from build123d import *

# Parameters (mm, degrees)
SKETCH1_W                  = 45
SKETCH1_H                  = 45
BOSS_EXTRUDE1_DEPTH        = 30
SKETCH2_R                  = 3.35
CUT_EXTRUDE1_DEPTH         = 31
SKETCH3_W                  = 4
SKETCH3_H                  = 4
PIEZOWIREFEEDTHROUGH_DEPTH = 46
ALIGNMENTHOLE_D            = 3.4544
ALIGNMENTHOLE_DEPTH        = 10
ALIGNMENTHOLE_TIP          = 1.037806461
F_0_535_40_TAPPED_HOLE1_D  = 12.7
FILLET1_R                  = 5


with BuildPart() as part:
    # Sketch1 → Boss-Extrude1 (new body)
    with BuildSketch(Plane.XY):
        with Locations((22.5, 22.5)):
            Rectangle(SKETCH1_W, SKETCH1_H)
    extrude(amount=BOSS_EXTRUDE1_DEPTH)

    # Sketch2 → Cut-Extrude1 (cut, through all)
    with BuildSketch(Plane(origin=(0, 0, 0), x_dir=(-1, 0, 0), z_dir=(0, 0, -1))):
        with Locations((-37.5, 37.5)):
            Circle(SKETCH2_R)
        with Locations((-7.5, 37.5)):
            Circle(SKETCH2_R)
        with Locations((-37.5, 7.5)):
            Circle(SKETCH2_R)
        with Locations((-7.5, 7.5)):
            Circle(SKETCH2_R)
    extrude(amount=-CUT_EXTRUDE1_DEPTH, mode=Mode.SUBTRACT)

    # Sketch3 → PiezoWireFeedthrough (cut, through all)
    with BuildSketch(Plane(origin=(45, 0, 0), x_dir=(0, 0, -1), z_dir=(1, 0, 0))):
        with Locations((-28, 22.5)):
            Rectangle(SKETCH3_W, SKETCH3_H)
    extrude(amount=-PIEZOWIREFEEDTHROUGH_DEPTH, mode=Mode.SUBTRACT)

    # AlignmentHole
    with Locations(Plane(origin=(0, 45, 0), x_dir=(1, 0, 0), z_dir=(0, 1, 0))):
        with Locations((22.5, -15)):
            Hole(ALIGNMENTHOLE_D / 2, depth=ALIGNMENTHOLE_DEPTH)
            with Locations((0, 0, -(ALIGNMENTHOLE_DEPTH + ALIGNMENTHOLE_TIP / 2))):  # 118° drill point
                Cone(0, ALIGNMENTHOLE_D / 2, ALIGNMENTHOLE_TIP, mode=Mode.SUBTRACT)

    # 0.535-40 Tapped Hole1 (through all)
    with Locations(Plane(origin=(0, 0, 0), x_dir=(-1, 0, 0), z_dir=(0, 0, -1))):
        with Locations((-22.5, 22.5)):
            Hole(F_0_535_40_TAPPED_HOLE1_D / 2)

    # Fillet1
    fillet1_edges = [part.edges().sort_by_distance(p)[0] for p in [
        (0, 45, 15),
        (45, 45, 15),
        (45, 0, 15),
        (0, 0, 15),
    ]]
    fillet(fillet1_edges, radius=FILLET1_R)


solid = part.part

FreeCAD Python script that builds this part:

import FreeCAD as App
import Part
import Sketcher
from FreeCAD import Vector
Q = App.Units.Quantity


def edges_at(feature, points):
    """Names of the edges that pass closest to the given points."""
    edges = feature.Shape.Edges
    near = lambda p: min(range(len(edges)), key=lambda i: edges[i].distToShape(Part.Vertex(*p))[0])
    return sorted({f"Edge{near(p) + 1}" for p in points})


def add_polygon(sketch, points):
    """Adds a closed chain of lines whose ends are joined by coincident constraints."""
    first, n = sketch.GeometryCount, len(points)
    for a, b in zip(points, points[1:] + points[:1]):
        sketch.addGeometry(Part.LineSegment(App.Vector(*a, 0), App.Vector(*b, 0)), False)
    for i in range(n):
        sketch.addConstraint(Sketcher.Constraint("Coincident", first + i, 2, first + (i + 1) % n, 1))

doc = App.newDocument("Part")
body = doc.addObject("PartDesign::Body", "Body")

# Sketch on XY plane
sketch1 = doc.addObject("Sketcher::SketchObject", "Sketch")
body.addObject(sketch1)
sketch1.AttachmentSupport = (doc.XY_Plane, [""])
sketch1.MapMode = "FlatFace"
add_polygon(sketch1, [(0, 45), (0, 0), (45, 0), (45, 45)])  # lines 0-3
sketch1.addConstraint(Sketcher.Constraint("Vertical", 0))
sketch1.addConstraint(Sketcher.Constraint("Horizontal", 1))
sketch1.addConstraint(Sketcher.Constraint("Vertical", 2))
sketch1.addConstraint(Sketcher.Constraint("Horizontal", 3))
sketch1.addConstraint(Sketcher.Constraint("Coincident", 0, 2, -1, 1))
sketch1.addConstraint(Sketcher.Constraint("Equal", 3, 0))
sketch1.addConstraint(Sketcher.Constraint("DistanceX", 1, 1, 1, 2, Q("45 mm")))
pad1 = doc.addObject("PartDesign::Pad", "Pad")
body.addObject(pad1)
pad1.Profile = sketch1
pad1.Length = 30

# Sketch on XY plane
sketch2 = doc.addObject("Sketcher::SketchObject", "Sketch001")
body.addObject(sketch2)
sketch2.AttachmentSupport = (doc.XY_Plane, [""])
sketch2.MapMode = "FlatFace"
sketch2.addGeometry(Part.Circle(Vector(37.5, 37.5, 0), Vector(0, 0, 1), 3.4), False)
sketch2.addGeometry(Part.Circle(Vector(7.5, 37.5, 0), Vector(0, 0, 1), 3.4), False)
sketch2.addGeometry(Part.Circle(Vector(37.5, 7.5, 0), Vector(0, 0, 1), 3.4), False)
sketch2.addGeometry(Part.Circle(Vector(7.5, 7.5, 0), Vector(0, 0, 1), 3.4), False)
sketch2.addConstraint(Sketcher.Constraint("Equal", 0, 1))
sketch2.addConstraint(Sketcher.Constraint("Equal", 1, 2))
sketch2.addConstraint(Sketcher.Constraint("Equal", 2, 3))
sketch2.addConstraint(Sketcher.Constraint("Horizontal", 0, 3, 1, 3))
sketch2.addConstraint(Sketcher.Constraint("Horizontal", 2, 3, 3, 3))
sketch2.addConstraint(Sketcher.Constraint("Vertical", 0, 3, 2, 3))
sketch2.addConstraint(Sketcher.Constraint("Vertical", 1, 3, 3, 3))
sketch2.addConstraint(Sketcher.Constraint("Diameter", 0, Q("6.7 mm")))
sketch2.addConstraint(Sketcher.Constraint("DistanceX", 1, 3, 0, 3, Q("30 mm")))
sketch2.addConstraint(Sketcher.Constraint("DistanceY", 2, 3, 0, 3, Q("30 mm")))
sketch2.addConstraint(Sketcher.Constraint("DistanceX", -1, 1, 0, 3, Q("37.5 mm")))
sketch2.addConstraint(Sketcher.Constraint("DistanceY", -1, 1, 0, 3, Q("37.5 mm")))
pocket1 = doc.addObject("PartDesign::Pocket", "Pocket")
body.addObject(pocket1)
pocket1.Profile = sketch2
pocket1.Type = "ThroughAll"
pocket1.Reversed = True

# Sketch on YZ plane
sketch3 = doc.addObject("Sketcher::SketchObject", "Sketch002")
body.addObject(sketch3)
sketch3.AttachmentSupport = (doc.YZ_Plane, [""])
sketch3.MapMode = "FlatFace"
sketch3.AttachmentOffset = App.Placement(Vector(0, 0, 45), App.Rotation())
add_polygon(sketch3, [(24.5, 30), (20.5, 30), (20.5, 26), (24.5, 26)])  # lines 0-3
sketch3.addConstraint(Sketcher.Constraint("Horizontal", 0))
sketch3.addConstraint(Sketcher.Constraint("Vertical", 1))
sketch3.addConstraint(Sketcher.Constraint("Horizontal", 2))
sketch3.addConstraint(Sketcher.Constraint("Vertical", 3))
sketch3.addConstraint(Sketcher.Constraint("Equal", 2, 1))
sketch3.addConstraint(Sketcher.Constraint("DistanceX", 0, 2, 0, 1, Q("4 mm")))
sketch3.addConstraint(Sketcher.Constraint("DistanceY", -1, 1, 0, 2, Q("30 mm")))
sketch3.addConstraint(Sketcher.Constraint("DistanceX", -1, 1, 0, 2, Q("20.5 mm")))
pocket2 = doc.addObject("PartDesign::Pocket", "Pocket001")
body.addObject(pocket2)
pocket2.Profile = sketch3
pocket2.Type = "ThroughAll"

# Sketch on XZ plane
sketch4 = doc.addObject("Sketcher::SketchObject", "Sketch003")
body.addObject(sketch4)
sketch4.AttachmentSupport = (doc.XZ_Plane, [""])
sketch4.MapMode = "FlatFace"
sketch4.AttachmentOffset = App.Placement(Vector(0, 0, -45), App.Rotation())
sketch4.addGeometry(Part.Circle(Vector(22.5, 15, 0), Vector(0, 0, 1), 1.7), False)
sketch4.addConstraint(Sketcher.Constraint("DistanceY", -1, 1, 0, 3, Q("15 mm")))
sketch4.addConstraint(Sketcher.Constraint("Diameter", 0, Q("3.4544 mm")))
sketch4.addConstraint(Sketcher.Constraint("DistanceX", -1, 1, 0, 3, Q("22.5 mm")))
doc.recompute()
hole = doc.addObject("PartDesign::Hole", "Hole")
body.addObject(hole)
hole.Profile = sketch4
hole.ThreadType = "None"
hole.Diameter = 3.4544
hole.DepthType = "Dimension"
hole.Depth = 10
hole.DrillPoint = "Angled"
hole.DrillPointAngle = 118
hole.Reversed = True

# Sketch on XY plane
sketch5 = doc.addObject("Sketcher::SketchObject", "Sketch004")
body.addObject(sketch5)
sketch5.AttachmentSupport = (doc.XY_Plane, [""])
sketch5.MapMode = "FlatFace"
sketch5.addGeometry(Part.Circle(Vector(22, 22, 0), Vector(0, 0, 1), 6), False)
sketch5.addConstraint(Sketcher.Constraint("Diameter", 0, Q("12.7 mm")))
sketch5.addConstraint(Sketcher.Constraint("DistanceX", -1, 1, 0, 3, Q("22.5 mm")))
sketch5.addConstraint(Sketcher.Constraint("DistanceY", -1, 1, 0, 3, Q("22.5 mm")))
doc.recompute()
hole2 = doc.addObject("PartDesign::Hole", "Hole001")
body.addObject(hole2)
hole2.Profile = sketch5
hole2.ThreadType = "None"
hole2.Diameter = 12.7
hole2.DepthType = "ThroughAll"
hole2.Reversed = True
doc.recompute()

fillet = doc.addObject("PartDesign::Fillet", "Fillet")
body.addObject(fillet)
fillet.Base = (hole2, edges_at(hole2, [
    (0, 45, 15),
    (45, 45, 15),
    (45, 0, 15),
    (0, 0, 15),
]))
fillet.Radius = 5

doc.recompute()
